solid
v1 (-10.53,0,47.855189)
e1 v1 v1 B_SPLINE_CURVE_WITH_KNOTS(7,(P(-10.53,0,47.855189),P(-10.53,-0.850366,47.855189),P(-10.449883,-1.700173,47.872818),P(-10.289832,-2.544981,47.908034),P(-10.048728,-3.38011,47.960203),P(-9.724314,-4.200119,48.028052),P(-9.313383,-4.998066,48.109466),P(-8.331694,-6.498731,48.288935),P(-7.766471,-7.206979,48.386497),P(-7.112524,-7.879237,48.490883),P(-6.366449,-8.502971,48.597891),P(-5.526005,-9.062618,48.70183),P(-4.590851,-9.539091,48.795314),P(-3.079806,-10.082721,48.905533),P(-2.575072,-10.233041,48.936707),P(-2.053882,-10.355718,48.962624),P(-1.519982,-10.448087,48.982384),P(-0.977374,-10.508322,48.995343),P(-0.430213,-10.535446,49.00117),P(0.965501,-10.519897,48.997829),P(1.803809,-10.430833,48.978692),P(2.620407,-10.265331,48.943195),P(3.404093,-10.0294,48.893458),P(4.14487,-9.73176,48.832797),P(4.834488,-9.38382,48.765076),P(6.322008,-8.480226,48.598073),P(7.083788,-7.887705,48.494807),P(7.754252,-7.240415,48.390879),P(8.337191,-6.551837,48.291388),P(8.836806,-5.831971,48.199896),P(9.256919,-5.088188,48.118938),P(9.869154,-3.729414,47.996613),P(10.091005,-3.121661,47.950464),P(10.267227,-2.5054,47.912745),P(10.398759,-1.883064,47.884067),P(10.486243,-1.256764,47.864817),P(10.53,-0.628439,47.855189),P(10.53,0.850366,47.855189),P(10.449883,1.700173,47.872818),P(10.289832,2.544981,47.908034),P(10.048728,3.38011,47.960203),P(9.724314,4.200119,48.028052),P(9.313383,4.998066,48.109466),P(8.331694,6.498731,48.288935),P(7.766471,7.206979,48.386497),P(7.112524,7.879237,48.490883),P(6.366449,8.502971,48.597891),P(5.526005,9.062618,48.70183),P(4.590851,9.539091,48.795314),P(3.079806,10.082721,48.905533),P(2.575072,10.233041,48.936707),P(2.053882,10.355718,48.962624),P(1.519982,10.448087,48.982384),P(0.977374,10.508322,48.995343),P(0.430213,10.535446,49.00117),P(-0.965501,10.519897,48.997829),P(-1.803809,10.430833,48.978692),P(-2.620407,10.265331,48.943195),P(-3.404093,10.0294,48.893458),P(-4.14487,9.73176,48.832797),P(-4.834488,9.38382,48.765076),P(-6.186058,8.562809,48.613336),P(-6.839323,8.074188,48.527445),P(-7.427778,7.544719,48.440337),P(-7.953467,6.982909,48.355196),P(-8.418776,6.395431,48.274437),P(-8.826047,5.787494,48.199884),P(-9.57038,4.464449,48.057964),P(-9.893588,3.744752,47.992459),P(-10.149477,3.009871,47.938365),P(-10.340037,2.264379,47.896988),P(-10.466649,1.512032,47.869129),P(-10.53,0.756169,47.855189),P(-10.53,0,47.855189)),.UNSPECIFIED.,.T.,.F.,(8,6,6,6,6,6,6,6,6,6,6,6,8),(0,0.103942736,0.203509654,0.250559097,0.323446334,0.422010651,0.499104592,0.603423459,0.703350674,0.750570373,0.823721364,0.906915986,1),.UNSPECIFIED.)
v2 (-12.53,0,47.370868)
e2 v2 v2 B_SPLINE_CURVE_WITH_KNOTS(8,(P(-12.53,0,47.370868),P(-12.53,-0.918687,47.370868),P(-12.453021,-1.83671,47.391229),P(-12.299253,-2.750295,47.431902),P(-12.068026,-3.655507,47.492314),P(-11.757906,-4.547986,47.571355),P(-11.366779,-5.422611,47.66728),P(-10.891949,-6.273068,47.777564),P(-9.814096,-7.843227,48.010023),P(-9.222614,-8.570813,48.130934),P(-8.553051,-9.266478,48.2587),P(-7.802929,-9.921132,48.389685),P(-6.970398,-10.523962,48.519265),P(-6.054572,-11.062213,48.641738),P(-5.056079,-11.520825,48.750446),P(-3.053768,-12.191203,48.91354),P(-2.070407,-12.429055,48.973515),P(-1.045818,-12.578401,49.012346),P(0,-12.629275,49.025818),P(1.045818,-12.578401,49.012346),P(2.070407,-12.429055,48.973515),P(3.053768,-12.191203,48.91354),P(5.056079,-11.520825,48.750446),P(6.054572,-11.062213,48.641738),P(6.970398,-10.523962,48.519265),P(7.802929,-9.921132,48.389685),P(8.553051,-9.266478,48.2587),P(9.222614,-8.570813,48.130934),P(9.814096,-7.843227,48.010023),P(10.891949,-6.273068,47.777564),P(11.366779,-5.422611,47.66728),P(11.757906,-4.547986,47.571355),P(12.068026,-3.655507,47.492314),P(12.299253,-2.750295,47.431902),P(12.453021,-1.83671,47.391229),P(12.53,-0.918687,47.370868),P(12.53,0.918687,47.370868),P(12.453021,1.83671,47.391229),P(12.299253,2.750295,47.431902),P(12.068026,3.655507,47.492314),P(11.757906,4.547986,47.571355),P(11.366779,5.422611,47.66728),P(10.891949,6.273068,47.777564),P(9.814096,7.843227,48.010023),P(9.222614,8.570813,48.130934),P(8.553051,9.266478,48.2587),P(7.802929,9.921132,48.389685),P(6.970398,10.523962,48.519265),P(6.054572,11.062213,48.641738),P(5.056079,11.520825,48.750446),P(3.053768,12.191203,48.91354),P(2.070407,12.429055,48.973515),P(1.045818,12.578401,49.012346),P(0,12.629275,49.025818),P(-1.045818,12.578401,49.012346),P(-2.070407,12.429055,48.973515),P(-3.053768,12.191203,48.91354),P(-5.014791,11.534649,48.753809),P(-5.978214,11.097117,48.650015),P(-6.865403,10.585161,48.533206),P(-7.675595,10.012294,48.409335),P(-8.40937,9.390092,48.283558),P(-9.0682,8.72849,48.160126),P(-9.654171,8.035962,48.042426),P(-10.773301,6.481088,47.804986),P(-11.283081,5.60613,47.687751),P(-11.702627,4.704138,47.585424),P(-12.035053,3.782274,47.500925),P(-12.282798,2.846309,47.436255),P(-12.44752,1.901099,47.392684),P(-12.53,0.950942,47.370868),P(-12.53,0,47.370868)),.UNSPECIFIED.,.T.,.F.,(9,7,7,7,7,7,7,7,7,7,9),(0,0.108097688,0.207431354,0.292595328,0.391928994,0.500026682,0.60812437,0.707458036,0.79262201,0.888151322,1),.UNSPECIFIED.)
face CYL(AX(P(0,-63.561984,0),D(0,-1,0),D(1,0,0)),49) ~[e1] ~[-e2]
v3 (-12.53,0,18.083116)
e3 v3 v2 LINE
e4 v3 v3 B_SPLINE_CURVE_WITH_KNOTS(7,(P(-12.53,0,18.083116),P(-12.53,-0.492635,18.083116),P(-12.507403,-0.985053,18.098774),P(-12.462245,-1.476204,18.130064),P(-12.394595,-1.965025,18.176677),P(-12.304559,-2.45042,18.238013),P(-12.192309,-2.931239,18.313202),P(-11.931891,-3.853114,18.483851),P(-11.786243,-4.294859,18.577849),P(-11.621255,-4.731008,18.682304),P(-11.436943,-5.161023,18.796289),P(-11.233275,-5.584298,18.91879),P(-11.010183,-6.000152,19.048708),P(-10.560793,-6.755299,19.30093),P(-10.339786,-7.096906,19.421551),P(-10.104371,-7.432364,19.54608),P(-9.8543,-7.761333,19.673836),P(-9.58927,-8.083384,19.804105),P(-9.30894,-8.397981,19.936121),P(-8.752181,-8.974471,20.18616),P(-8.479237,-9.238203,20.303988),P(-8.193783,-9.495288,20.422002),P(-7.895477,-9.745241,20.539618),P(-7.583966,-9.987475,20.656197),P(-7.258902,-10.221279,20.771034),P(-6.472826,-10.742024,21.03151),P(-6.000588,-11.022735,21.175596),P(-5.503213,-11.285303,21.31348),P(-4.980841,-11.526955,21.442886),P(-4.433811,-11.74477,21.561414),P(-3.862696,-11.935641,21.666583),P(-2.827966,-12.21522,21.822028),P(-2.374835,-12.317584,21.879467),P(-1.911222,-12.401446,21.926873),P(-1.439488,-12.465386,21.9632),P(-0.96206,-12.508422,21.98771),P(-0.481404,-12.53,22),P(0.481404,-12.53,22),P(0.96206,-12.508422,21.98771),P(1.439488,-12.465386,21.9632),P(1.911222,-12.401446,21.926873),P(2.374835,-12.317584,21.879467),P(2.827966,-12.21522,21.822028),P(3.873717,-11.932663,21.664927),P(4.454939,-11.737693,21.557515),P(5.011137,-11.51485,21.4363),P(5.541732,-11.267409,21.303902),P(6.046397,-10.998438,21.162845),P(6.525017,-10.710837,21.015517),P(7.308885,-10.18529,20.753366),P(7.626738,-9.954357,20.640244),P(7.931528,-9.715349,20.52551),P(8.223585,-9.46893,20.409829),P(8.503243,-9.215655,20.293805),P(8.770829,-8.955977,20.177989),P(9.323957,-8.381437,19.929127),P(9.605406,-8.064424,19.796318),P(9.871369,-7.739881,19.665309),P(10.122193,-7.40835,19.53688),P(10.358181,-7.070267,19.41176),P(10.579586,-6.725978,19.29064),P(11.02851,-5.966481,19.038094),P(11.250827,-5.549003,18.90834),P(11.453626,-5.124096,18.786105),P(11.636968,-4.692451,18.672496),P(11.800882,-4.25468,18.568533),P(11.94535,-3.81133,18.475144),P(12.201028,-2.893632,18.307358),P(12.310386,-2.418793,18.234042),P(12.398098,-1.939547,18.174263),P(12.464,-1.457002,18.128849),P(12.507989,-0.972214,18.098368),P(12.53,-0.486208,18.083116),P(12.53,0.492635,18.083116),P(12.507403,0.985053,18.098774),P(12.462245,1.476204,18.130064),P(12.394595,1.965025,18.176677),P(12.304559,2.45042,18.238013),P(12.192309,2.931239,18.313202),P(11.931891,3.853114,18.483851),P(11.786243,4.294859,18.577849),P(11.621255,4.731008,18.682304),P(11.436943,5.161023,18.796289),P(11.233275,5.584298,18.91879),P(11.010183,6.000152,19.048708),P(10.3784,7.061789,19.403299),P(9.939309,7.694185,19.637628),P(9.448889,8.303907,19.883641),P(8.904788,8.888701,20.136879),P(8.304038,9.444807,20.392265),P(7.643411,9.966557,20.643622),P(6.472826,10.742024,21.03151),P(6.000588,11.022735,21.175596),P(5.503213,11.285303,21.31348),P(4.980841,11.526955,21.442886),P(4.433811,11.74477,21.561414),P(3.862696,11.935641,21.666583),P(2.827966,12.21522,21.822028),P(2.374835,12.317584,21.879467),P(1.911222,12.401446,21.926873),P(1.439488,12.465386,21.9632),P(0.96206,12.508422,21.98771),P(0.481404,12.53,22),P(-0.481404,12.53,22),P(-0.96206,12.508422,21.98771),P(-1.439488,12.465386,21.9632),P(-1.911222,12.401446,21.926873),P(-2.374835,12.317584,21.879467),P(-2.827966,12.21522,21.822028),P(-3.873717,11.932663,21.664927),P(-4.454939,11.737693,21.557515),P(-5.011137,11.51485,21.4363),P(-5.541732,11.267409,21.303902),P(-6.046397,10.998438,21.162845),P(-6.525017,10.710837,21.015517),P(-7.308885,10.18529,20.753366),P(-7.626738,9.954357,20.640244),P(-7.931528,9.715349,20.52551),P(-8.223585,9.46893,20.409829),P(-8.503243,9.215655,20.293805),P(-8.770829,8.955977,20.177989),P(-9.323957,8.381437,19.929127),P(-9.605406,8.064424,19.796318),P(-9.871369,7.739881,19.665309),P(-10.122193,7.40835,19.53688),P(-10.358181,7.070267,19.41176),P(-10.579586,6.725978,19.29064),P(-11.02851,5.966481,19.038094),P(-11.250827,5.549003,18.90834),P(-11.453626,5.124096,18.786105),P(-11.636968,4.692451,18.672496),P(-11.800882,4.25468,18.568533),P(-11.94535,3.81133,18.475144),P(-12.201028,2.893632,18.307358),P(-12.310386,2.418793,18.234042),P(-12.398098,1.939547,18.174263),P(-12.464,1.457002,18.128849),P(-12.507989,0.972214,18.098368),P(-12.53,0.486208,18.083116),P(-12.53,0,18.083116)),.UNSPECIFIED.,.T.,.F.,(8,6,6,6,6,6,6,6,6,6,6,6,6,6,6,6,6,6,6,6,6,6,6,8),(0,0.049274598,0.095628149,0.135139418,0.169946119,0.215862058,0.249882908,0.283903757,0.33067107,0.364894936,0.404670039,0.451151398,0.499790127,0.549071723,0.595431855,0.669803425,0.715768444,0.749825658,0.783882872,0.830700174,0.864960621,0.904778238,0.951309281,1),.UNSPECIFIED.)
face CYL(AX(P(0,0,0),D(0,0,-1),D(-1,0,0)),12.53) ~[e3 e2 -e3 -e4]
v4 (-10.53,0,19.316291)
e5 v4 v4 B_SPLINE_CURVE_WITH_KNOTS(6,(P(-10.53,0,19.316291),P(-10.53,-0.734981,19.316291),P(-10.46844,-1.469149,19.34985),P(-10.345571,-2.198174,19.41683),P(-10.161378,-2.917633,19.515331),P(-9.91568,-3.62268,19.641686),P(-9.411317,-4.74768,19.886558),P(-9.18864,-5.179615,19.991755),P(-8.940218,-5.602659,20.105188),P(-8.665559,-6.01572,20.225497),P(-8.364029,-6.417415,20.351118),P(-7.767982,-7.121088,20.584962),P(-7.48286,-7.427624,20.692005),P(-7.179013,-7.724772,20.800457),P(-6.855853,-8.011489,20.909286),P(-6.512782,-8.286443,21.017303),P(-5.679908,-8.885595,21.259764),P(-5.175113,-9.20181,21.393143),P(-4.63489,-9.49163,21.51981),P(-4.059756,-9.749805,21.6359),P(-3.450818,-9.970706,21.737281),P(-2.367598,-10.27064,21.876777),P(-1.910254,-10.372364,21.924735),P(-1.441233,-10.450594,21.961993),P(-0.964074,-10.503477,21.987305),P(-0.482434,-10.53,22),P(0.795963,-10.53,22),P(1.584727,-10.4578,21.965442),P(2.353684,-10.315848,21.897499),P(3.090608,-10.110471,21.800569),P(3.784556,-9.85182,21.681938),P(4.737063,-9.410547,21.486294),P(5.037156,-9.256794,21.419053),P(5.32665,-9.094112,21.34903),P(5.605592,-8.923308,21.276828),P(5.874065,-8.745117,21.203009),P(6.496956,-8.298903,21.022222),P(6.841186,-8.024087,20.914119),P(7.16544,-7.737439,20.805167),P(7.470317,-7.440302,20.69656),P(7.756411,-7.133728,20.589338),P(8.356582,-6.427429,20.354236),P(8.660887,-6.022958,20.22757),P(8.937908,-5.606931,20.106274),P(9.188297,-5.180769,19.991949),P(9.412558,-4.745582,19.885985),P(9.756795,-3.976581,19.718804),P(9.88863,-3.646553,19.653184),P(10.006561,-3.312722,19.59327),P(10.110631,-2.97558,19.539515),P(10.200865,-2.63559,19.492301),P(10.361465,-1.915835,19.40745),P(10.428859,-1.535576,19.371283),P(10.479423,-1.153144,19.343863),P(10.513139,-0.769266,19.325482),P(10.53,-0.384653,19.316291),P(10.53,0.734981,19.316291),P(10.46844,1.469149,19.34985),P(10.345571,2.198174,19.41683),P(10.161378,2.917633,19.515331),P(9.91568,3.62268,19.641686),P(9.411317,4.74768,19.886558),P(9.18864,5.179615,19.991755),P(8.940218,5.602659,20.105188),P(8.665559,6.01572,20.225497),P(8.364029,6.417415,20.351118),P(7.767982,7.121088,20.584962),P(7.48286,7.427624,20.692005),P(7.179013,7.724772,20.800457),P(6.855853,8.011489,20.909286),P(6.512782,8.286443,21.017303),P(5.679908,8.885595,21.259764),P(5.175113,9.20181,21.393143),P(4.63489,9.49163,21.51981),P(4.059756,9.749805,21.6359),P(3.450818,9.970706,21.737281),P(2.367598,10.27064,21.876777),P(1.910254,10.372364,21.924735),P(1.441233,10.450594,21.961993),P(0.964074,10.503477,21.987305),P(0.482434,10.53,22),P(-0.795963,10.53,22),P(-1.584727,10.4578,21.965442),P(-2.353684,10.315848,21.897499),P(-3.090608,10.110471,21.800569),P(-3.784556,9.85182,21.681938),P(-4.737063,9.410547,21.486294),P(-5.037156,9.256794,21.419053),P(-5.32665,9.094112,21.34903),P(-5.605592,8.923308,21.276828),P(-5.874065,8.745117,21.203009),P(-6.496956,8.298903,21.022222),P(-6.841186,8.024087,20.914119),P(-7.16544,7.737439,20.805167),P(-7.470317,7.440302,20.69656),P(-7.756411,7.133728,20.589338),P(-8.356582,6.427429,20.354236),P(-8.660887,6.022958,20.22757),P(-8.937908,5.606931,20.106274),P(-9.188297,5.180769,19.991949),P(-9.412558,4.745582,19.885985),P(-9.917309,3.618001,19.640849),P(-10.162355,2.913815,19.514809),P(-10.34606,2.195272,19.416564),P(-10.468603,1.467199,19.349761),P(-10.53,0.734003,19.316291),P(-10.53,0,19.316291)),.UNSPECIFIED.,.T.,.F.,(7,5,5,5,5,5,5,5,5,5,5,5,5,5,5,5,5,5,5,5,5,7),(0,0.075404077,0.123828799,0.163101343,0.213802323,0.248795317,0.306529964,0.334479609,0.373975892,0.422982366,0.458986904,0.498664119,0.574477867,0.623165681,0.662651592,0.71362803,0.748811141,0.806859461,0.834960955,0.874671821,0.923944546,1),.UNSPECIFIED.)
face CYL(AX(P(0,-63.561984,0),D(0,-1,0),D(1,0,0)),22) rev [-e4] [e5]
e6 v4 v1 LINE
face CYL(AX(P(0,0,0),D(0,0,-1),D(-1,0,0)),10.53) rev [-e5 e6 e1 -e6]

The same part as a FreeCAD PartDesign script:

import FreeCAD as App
import Part
import Sketcher

V = App.Vector
Q = App.Units.Quantity

doc = App.newDocument("Part")
body = doc.addObject("PartDesign::Body", "Body")

# Sketch on XY plane
sketch1 = body.newObject("Sketcher::SketchObject", "Sketch")
sketch1.AttachmentSupport = (doc.getObject("XY_Plane"), [""])
sketch1.MapMode = "FlatFace"
sketch1.addGeometry(Part.Circle(V(0, 0, 0), V(0, 0, 1), 12.53), False)
sketch1.addGeometry(Part.Circle(V(0, 0, 0), V(0, 0, 1), 10.53), False)
sketch1.addConstraint(Sketcher.Constraint("Coincident", 0, 3, -1, 1))
sketch1.addConstraint(Sketcher.Constraint("Coincident", 1, 3, -1, 1))
sketch1.addConstraint(Sketcher.Constraint("Diameter", 0, Q("25.06 mm")))
sketch1.addConstraint(Sketcher.Constraint("Diameter", 1, Q("21.06 mm")))
pad1 = body.newObject("PartDesign::Pad", "Pad")
pad1.Profile = sketch1
pad1.Length = 60

# Sketch on XZ plane
sketch2 = body.newObject("Sketcher::SketchObject", "Sketch001")
sketch2.AttachmentSupport = (doc.getObject("XZ_Plane"), [""])
sketch2.MapMode = "FlatFace"
sketch2.addGeometry(Part.Circle(V(0, 0, 0), V(0, 0, 1), 74.589725), False)
sketch2.addGeometry(Part.Circle(V(0, 0, 0), V(0, 0, 1), 49), False)
sketch2.addGeometry(Part.Circle(V(0, 0, 0), V(0, 0, 1), 22), False)
sketch2.addConstraint(Sketcher.Constraint("Coincident", 0, 3, -1, 1))
sketch2.addConstraint(Sketcher.Constraint("Coincident", 1, 3, -1, 1))
sketch2.addConstraint(Sketcher.Constraint("Coincident", 2, 3, -1, 1))
sketch2.addConstraint(Sketcher.Constraint("Diameter", 1, Q("98 mm")))
sketch2.addConstraint(Sketcher.Constraint("Diameter", 2, Q("44 mm")))
sketch2.addConstraint(Sketcher.Constraint("Diameter", 0, Q("149.179449 mm")))
pocket1 = body.newObject("PartDesign::Pocket", "Pocket")
pocket1.Profile = sketch2
pocket1.Type = "ThroughAll"
pocket1.Midplane = True

doc.recompute()
